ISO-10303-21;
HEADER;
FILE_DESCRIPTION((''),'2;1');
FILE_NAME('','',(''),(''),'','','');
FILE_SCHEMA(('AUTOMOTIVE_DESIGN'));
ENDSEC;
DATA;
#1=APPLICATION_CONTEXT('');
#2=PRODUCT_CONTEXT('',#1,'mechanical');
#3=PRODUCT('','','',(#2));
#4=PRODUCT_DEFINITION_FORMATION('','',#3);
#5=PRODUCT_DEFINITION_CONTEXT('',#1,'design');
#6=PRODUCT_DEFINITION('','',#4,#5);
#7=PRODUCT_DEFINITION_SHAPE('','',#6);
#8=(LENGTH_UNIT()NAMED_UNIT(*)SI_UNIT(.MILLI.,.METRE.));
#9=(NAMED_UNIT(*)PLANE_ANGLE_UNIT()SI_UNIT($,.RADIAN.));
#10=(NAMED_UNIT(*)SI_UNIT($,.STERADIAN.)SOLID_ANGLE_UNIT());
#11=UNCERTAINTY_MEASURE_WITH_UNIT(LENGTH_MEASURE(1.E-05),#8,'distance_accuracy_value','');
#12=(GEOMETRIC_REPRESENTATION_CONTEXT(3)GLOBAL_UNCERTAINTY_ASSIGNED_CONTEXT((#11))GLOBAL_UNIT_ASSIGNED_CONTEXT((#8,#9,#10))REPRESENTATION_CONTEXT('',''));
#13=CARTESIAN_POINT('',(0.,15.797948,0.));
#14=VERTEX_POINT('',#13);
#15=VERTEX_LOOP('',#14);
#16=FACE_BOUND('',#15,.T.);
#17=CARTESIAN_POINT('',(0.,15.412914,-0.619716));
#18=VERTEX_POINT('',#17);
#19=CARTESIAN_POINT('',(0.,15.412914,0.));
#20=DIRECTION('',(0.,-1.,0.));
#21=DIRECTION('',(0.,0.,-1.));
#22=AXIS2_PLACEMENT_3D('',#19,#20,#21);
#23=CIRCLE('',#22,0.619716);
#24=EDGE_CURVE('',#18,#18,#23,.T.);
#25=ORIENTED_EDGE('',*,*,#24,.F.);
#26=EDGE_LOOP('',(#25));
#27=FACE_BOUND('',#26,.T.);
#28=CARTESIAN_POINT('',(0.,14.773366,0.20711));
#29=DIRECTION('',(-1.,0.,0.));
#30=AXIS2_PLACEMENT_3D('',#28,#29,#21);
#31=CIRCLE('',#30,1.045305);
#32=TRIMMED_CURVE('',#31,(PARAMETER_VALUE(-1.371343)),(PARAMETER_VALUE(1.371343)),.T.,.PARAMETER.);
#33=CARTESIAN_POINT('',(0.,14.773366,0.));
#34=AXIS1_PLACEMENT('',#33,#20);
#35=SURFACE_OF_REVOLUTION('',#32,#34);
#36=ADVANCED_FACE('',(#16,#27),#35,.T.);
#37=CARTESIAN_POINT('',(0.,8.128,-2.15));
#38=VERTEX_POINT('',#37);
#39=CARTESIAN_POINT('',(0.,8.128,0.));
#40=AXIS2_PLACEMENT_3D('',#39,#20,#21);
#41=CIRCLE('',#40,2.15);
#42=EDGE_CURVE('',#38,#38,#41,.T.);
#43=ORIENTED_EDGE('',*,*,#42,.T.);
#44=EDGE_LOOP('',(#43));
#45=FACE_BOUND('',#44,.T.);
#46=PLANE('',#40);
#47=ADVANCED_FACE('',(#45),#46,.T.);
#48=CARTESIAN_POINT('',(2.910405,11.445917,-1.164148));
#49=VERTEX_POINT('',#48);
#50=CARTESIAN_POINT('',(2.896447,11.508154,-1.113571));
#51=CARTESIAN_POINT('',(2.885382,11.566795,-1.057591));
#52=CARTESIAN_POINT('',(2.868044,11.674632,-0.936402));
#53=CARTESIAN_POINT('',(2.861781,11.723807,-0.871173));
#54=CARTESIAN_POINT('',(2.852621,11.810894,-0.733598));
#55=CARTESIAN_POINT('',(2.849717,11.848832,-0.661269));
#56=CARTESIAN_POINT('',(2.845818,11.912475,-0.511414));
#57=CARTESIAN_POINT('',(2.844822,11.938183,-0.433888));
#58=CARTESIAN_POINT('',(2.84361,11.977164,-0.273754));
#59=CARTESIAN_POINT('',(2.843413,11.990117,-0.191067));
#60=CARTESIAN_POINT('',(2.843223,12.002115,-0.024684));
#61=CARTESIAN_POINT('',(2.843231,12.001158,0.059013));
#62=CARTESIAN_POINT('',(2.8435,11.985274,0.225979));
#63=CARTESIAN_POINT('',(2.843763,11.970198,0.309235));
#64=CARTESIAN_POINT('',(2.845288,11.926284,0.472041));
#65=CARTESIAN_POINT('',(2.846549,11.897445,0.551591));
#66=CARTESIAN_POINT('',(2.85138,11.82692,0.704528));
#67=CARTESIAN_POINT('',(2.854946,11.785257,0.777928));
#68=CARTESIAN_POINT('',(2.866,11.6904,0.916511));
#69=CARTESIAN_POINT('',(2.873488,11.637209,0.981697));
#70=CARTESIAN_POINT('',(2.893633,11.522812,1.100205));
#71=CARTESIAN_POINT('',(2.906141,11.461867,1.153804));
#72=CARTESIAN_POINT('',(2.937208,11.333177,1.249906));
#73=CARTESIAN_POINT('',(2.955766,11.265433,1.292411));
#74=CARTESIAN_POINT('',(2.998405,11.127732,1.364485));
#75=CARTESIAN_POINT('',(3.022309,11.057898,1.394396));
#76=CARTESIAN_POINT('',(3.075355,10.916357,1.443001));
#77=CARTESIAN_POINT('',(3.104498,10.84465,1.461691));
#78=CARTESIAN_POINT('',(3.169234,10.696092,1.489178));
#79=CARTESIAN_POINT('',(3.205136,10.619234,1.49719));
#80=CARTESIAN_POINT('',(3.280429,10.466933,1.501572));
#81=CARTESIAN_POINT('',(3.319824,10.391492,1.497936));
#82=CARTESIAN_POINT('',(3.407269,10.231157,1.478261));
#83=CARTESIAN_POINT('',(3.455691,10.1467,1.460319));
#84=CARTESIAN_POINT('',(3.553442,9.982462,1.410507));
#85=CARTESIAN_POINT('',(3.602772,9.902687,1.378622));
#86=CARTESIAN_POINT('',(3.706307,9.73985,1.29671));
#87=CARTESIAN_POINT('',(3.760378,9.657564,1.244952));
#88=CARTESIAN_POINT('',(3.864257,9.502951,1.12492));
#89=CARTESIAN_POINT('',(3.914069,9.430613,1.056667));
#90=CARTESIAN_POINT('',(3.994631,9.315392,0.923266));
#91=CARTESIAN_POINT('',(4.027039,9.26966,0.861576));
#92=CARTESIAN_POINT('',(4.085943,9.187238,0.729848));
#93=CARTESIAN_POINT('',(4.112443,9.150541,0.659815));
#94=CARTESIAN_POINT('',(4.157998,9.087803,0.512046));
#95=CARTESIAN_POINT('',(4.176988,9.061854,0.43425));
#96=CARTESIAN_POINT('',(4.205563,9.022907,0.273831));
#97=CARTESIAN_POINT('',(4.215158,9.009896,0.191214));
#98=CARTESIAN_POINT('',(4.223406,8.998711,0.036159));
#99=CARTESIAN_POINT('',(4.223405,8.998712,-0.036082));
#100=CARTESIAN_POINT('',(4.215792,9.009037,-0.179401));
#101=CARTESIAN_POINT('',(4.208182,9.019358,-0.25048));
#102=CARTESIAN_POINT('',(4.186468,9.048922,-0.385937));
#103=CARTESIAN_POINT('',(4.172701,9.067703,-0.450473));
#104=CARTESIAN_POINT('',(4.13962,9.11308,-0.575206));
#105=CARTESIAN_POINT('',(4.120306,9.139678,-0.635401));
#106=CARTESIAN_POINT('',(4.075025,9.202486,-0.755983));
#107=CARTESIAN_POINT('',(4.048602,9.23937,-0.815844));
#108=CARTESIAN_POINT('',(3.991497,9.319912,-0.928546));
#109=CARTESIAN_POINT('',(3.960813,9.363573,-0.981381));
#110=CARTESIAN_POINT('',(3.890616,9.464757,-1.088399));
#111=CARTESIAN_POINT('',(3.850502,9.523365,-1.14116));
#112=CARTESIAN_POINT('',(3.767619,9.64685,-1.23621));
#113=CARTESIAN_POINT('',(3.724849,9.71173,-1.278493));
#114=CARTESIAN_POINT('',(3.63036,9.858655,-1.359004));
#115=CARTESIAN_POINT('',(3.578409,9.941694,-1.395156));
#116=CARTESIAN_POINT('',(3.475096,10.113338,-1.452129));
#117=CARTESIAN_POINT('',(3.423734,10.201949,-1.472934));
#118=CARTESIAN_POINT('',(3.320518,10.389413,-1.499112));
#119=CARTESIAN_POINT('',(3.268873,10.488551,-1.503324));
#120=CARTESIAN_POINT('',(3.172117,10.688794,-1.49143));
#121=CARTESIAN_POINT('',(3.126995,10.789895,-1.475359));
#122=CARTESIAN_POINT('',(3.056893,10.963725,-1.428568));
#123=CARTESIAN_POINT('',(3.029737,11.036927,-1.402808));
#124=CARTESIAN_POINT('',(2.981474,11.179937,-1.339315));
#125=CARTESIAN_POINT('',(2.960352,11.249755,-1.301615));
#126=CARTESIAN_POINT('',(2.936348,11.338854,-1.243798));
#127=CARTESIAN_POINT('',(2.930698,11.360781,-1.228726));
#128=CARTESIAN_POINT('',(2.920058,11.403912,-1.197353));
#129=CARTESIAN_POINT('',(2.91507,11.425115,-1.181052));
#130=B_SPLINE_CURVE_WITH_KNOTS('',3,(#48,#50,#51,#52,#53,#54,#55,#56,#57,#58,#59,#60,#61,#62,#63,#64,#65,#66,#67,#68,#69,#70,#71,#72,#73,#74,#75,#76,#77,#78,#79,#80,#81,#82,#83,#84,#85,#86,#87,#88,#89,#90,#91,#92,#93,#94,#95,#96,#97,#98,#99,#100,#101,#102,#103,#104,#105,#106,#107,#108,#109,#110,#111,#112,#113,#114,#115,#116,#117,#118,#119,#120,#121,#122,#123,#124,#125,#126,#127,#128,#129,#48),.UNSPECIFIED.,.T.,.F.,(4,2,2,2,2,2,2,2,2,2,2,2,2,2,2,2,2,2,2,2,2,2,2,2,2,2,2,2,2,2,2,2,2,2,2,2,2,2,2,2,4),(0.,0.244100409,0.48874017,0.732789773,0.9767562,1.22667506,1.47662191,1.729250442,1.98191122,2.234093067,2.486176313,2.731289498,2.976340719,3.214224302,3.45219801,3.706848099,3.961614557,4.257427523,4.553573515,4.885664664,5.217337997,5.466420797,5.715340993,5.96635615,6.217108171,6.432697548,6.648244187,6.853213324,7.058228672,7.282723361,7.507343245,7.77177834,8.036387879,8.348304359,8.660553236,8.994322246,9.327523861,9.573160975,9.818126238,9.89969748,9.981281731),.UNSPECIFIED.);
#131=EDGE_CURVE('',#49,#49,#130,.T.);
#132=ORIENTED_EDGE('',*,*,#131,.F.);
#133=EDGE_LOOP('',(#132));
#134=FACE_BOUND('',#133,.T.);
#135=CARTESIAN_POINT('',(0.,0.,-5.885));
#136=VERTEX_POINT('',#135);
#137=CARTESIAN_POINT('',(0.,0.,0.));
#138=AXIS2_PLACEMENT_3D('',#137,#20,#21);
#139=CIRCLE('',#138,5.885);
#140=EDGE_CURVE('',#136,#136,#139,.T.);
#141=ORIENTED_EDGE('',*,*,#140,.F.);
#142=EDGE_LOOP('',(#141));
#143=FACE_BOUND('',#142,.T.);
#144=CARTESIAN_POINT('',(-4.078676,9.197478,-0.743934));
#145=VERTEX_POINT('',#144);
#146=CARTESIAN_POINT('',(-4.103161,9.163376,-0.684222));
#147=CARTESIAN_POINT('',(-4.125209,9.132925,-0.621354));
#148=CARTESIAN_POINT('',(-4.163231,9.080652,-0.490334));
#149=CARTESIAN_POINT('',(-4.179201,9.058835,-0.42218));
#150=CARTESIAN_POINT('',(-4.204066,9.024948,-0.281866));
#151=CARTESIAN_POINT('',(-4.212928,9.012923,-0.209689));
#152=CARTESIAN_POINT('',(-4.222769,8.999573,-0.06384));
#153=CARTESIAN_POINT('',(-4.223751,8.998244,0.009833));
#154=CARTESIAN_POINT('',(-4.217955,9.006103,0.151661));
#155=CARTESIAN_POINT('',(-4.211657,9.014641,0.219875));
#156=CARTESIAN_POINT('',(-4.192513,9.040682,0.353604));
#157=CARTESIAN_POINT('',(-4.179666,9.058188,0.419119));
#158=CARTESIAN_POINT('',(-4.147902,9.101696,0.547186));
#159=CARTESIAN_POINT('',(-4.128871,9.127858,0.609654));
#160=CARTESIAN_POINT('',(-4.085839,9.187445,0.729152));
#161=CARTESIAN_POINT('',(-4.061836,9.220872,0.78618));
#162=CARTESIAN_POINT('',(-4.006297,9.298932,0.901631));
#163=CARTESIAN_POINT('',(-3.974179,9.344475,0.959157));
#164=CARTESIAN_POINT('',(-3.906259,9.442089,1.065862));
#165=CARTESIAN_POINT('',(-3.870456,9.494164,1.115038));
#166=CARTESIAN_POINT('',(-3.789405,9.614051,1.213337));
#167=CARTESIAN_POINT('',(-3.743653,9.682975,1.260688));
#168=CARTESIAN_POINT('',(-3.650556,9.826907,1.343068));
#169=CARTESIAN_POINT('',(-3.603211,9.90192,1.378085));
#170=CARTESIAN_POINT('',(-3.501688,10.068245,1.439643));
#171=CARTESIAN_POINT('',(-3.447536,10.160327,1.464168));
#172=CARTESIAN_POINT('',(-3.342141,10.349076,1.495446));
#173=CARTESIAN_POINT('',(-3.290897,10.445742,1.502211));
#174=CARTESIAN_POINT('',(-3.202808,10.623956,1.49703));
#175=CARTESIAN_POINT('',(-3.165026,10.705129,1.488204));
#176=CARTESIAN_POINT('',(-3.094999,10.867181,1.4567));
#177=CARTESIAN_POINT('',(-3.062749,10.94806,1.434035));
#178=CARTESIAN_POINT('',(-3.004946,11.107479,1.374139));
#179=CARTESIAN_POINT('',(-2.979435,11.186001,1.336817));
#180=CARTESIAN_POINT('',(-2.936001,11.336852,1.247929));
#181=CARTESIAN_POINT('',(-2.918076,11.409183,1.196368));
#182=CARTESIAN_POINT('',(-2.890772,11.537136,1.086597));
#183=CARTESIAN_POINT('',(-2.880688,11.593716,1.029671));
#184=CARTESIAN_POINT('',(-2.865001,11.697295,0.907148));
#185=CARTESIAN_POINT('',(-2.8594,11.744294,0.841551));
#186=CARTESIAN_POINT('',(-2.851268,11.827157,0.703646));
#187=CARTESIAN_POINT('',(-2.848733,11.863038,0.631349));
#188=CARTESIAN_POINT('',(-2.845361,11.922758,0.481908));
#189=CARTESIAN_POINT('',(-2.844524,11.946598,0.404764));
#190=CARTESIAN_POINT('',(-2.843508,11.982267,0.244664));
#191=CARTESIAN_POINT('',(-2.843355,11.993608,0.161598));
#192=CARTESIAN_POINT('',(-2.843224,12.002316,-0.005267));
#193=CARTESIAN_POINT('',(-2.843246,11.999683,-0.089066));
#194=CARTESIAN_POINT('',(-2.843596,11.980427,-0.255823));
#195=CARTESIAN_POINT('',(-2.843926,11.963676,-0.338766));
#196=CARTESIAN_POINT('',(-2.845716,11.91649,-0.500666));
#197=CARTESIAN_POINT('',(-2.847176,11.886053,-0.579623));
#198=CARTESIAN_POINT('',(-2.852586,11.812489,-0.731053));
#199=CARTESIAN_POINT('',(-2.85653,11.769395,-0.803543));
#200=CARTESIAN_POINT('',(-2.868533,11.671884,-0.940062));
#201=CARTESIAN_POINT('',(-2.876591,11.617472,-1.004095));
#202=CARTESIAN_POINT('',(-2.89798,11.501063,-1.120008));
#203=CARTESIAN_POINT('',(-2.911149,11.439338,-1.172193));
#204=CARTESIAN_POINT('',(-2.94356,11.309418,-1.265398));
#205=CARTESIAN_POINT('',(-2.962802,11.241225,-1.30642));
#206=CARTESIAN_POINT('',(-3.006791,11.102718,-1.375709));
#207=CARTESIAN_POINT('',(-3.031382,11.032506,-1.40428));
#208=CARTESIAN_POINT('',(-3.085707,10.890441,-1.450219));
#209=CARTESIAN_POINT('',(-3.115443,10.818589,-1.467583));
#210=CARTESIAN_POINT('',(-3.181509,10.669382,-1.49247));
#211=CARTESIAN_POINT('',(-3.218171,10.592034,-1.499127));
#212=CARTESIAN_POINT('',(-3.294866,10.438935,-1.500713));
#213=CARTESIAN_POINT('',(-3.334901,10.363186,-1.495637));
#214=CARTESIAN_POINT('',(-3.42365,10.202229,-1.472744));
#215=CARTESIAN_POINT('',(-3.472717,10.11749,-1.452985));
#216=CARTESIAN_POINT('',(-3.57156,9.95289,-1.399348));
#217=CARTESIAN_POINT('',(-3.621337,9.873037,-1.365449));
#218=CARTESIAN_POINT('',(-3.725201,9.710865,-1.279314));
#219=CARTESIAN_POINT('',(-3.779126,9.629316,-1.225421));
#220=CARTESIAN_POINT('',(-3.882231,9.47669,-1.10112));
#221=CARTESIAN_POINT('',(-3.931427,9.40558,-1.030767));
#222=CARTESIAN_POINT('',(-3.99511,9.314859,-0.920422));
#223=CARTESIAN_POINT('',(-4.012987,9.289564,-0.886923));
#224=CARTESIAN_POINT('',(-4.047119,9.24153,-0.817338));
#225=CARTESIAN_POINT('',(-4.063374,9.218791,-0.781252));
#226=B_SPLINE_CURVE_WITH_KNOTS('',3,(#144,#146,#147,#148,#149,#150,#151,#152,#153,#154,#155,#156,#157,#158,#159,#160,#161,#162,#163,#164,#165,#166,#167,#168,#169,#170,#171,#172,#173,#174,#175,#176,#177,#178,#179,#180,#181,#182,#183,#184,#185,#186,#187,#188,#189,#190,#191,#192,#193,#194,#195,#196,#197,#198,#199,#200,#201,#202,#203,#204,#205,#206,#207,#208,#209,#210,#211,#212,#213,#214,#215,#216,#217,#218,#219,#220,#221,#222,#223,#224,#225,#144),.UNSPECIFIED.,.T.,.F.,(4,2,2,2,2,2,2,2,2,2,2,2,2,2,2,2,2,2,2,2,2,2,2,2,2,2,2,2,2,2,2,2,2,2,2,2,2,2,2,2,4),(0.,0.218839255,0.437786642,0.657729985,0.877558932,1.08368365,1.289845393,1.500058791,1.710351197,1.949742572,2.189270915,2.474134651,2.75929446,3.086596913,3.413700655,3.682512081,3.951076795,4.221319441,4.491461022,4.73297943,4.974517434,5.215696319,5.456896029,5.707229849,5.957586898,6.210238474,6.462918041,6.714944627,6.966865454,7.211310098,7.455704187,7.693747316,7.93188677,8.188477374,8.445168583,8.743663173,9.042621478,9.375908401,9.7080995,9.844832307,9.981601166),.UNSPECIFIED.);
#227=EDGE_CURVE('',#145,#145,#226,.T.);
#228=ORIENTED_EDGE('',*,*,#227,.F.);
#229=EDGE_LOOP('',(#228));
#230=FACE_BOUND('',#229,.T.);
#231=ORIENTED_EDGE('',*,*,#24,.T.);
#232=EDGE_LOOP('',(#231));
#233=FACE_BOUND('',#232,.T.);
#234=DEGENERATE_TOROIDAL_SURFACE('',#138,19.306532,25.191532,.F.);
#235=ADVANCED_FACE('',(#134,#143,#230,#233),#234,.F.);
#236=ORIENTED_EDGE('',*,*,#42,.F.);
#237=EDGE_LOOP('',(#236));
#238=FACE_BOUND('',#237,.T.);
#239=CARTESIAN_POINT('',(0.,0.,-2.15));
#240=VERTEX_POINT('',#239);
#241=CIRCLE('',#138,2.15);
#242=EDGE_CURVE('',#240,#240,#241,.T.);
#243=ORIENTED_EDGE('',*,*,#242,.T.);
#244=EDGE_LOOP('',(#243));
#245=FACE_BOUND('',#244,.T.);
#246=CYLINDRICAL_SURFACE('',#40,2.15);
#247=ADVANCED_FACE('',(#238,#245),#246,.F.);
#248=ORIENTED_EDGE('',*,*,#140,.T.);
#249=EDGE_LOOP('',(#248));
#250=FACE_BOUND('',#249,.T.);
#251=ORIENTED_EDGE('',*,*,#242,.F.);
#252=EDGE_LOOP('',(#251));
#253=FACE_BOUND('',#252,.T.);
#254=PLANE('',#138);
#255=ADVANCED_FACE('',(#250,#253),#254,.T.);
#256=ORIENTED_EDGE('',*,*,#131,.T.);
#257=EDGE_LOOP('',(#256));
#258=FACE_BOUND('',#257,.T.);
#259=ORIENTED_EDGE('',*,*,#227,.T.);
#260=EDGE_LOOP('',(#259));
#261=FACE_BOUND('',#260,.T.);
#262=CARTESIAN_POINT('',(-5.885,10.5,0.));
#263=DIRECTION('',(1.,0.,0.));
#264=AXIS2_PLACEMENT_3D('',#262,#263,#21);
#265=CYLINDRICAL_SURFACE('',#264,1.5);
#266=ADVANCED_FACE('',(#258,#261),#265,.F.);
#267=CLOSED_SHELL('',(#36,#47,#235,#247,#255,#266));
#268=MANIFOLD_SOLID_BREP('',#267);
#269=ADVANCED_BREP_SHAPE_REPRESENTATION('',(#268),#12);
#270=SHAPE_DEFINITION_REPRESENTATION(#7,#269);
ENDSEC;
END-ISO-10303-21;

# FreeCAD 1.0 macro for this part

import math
import FreeCAD as App
import Part
import Sketcher
from FreeCAD import Vector

doc = App.newDocument("Part")
body = doc.addObject("PartDesign::Body", "Body")

sketch1 = body.newObject("Sketcher::SketchObject", "Sketch")
sketch1.AttachmentSupport = (doc.getObject("YZ_Plane"), [""])
sketch1.MapMode = "FlatFace"
sketch1.addGeometry(Part.LineSegment(Vector(0, 0, 0), Vector(0, -5.9, 0)), False)
sketch1.addGeometry(Part.ArcOfCircle(Part.Circle(Vector(0, 19.3, 0), Vector(0, 0, 1), 25.2), math.radians(-90), math.radians(-52)), False)
sketch1.addGeometry(Part.ArcOfCircle(Part.Circle(Vector(14.8, 0.2, 0), Vector(0, 0, 1), 1), math.radians(-52), math.radians(-11)), False)
sketch1.addGeometry(Part.LineSegment(Vector(15.8, 0, 0), Vector(0, 0, 0)), False)
sketch1.addConstraint(Sketcher.Constraint("Coincident", 0, 2, 1, 1))
sketch1.addConstraint(Sketcher.Constraint("Tangent", 1, 2, 2, 1))
sketch1.addConstraint(Sketcher.Constraint("Coincident", 2, 2, 3, 1))
sketch1.addConstraint(Sketcher.Constraint("Coincident", 3, 2, 0, 1))
sketch1.addConstraint(Sketcher.Constraint("Vertical", 0))
sketch1.addConstraint(Sketcher.Constraint("Horizontal", 3))
sketch1.addConstraint(Sketcher.Constraint("Coincident", 3, 2, -1, 1))
sketch1.addConstraint(Sketcher.Constraint("PointOnObject", 1, 3, -2))
sketch1.addConstraint(Sketcher.Constraint("DistanceY", 0, 2, 0, 1, 5.885))
sketch1.addConstraint(Sketcher.Constraint("Radius", 1, 25.191532))
sketch1.addConstraint(Sketcher.Constraint("Radius", 2, 1.045305))
sketch1.addConstraint(Sketcher.Constraint("DistanceX", 3, 2, 3, 1, 15.797948))
revolution = body.newObject("PartDesign::Revolution", "Revolution")
revolution.Profile = sketch1
revolution.ReferenceAxis = (sketch1, ["H_Axis"])
revolution.Angle = 360

sketch2 = body.newObject("Sketcher::SketchObject", "Sketch001")
sketch2.AttachmentSupport = (doc.getObject("XZ_Plane"), [""])
sketch2.MapMode = "FlatFace"
sketch2.addGeometry(Part.Circle(Vector(0, 0, 0), Vector(0, 0, 1), 2.1), False)
sketch2.addConstraint(Sketcher.Constraint("Coincident", 0, 3, -1, 1))
sketch2.addConstraint(Sketcher.Constraint("Diameter", 0, 4.3))
pocket1 = body.newObject("PartDesign::Pocket", "Pocket")
pocket1.Profile = sketch2
pocket1.Length = 8.128

sketch3 = body.newObject("Sketcher::SketchObject", "Sketch002")
sketch3.AttachmentSupport = (doc.getObject("YZ_Plane"), [""])
sketch3.MapMode = "FlatFace"
sketch3.addGeometry(Part.Circle(Vector(10.5, 0, 0), Vector(0, 0, 1), 1.5), False)
sketch3.addConstraint(Sketcher.Constraint("PointOnObject", 0, 3, -1))
sketch3.addConstraint(Sketcher.Constraint("Diameter", 0, 3.0))
sketch3.addConstraint(Sketcher.Constraint("DistanceX", -1, 1, 0, 3, 10.5))
pocket2 = body.newObject("PartDesign::Pocket", "Pocket001")
pocket2.Profile = sketch3
pocket2.Type = "ThroughAll"
pocket2.Midplane = True

doc.recompute()
